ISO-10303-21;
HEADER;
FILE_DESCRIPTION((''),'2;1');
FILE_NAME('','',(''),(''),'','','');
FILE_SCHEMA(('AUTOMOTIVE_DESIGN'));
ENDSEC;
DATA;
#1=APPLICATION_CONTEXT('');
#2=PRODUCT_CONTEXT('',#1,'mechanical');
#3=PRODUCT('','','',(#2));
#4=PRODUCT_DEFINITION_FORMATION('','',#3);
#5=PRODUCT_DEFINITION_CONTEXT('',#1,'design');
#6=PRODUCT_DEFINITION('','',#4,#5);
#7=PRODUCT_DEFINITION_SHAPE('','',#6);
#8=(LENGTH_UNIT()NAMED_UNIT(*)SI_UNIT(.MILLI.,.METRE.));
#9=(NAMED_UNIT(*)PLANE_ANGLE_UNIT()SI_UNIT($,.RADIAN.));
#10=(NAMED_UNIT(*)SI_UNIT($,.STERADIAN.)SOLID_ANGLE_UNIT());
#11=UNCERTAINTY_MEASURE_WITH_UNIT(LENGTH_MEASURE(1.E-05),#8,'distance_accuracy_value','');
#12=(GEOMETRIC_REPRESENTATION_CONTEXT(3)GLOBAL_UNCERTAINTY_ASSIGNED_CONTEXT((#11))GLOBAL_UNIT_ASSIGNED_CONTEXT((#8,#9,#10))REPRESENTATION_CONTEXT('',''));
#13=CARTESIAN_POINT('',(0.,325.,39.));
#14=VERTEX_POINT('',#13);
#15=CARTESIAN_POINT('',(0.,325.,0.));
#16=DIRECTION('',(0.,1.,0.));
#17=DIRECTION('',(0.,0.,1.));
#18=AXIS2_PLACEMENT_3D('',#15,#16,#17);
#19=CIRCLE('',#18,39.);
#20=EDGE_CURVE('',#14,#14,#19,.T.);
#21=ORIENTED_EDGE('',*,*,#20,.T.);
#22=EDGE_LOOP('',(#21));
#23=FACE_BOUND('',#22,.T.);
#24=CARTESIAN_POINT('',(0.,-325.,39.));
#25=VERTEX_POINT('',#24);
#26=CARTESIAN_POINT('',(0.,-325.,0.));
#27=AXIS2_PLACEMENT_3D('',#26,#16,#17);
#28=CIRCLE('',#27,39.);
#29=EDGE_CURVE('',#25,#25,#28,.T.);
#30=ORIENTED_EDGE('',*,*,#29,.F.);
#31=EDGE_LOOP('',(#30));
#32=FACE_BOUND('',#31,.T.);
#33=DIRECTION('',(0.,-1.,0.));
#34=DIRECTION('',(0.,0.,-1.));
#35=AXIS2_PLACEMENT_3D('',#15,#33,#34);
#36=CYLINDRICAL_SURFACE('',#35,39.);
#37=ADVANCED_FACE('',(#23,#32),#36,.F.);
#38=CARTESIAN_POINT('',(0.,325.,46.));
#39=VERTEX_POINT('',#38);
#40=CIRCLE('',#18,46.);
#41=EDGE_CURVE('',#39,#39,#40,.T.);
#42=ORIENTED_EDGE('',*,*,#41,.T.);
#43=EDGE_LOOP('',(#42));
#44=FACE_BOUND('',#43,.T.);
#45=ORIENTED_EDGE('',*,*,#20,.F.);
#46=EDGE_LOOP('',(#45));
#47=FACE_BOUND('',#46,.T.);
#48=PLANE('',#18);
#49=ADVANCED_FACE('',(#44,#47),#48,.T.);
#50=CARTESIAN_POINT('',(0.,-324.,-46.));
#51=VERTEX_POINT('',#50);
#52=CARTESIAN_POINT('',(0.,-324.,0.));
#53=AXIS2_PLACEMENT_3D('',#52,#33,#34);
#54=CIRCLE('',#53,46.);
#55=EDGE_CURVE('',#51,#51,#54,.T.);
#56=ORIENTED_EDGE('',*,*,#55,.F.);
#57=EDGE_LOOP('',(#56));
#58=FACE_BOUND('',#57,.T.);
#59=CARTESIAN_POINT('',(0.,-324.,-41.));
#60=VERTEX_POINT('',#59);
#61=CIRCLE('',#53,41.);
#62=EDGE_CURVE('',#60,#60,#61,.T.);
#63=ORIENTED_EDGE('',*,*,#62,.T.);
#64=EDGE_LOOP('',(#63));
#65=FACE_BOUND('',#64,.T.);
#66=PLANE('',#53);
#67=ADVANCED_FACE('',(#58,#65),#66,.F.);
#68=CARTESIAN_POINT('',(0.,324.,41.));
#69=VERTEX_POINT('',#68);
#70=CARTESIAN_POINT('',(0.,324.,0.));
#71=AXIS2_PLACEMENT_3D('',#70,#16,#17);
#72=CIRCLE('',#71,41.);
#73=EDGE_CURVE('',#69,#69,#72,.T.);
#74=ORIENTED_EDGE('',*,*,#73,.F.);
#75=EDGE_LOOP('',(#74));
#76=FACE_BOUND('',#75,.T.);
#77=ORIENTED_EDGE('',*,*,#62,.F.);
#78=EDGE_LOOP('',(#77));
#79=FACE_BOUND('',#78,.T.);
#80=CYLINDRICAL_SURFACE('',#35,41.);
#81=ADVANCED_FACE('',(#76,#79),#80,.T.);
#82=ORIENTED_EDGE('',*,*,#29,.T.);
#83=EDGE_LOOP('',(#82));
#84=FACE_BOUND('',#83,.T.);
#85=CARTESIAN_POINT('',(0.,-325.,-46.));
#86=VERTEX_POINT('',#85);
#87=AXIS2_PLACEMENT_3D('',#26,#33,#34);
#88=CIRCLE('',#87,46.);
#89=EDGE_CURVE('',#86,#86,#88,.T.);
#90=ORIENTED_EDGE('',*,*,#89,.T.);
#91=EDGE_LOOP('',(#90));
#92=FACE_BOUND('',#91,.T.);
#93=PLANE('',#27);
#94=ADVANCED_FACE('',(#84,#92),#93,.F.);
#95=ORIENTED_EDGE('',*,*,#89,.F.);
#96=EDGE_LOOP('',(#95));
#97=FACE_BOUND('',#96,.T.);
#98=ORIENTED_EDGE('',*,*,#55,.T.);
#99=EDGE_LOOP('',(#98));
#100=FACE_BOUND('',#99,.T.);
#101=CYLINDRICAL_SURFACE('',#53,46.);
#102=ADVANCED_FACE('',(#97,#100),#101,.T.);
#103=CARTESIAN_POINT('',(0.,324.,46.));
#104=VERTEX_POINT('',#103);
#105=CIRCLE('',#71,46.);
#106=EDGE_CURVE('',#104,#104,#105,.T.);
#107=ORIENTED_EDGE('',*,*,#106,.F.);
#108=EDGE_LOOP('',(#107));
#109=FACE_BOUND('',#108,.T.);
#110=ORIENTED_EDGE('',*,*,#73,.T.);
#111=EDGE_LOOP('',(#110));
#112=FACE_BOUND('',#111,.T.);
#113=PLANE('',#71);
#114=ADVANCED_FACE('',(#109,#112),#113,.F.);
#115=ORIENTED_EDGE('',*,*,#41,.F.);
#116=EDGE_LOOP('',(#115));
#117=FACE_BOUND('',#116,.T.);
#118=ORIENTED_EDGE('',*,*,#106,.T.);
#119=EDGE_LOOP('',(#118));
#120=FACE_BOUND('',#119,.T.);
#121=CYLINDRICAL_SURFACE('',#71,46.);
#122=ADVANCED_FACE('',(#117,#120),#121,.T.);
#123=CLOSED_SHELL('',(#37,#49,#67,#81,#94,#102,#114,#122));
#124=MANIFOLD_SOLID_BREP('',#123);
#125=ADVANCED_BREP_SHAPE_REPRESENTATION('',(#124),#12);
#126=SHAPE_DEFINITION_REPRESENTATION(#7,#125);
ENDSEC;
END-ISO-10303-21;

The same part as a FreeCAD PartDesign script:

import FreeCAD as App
import Part
import Sketcher
Q = App.Units.Quantity

doc = App.newDocument("Part")
body = doc.addObject("PartDesign::Body", "Body")

sketch1 = doc.addObject("Sketcher::SketchObject", "Sketch")
body.addObject(sketch1)
sketch1.AttachmentSupport = (doc.XZ_Plane, [""])
sketch1.MapMode = "FlatFace"
sketch1.addGeometry([
    Part.Circle(App.Vector(0, 0, 0), App.Vector(0, 0, 1), 41),
    Part.Circle(App.Vector(0, 0, 0), App.Vector(0, 0, 1), 39),
], False)
sketch1.addConstraint([
    Sketcher.Constraint("Coincident", 0, 3, -1, 1),
    Sketcher.Constraint("Coincident", 1, 3, -1, 1),
    Sketcher.Constraint("Diameter", 0, Q("82 mm")),
    Sketcher.Constraint("Diameter", 1, Q("78 mm")),
])
pad1 = doc.addObject("PartDesign::Pad", "Pad")
body.addObject(pad1)
pad1.Profile = sketch1
pad1.Length = 650
pad1.Midplane = True

sketch2 = doc.addObject("Sketcher::SketchObject", "Sketch001")
body.addObject(sketch2)
sketch2.AttachmentSupport = (doc.XZ_Plane, [""])
sketch2.MapMode = "FlatFace"
sketch2.AttachmentOffset = App.Placement(App.Vector(0, 0, -325), App.Rotation())
sketch2.addGeometry([
    Part.Circle(App.Vector(0, 0, 0), App.Vector(0, 0, 1), 46),
    Part.Circle(App.Vector(0, 0, 0), App.Vector(0, 0, 1), 41),
], False)
sketch2.addConstraint([
    Sketcher.Constraint("Coincident", 0, 3, -1, 1),
    Sketcher.Constraint("Coincident", 1, 3, -1, 1),
    Sketcher.Constraint("Diameter", 0, Q("92 mm")),
    Sketcher.Constraint("Diameter", 1, Q("82 mm")),
])
pad2 = doc.addObject("PartDesign::Pad", "Pad001")
body.addObject(pad2)
pad2.Profile = sketch2
pad2.Length = 1

sketch3 = doc.addObject("Sketcher::SketchObject", "Sketch002")
body.addObject(sketch3)
sketch3.AttachmentSupport = (doc.XZ_Plane, [""])
sketch3.MapMode = "FlatFace"
sketch3.AttachmentOffset = App.Placement(App.Vector(0, 0, 324), App.Rotation())
sketch3.addGeometry([
    Part.Circle(App.Vector(0, 0, 0), App.Vector(0, 0, 1), 46),
    Part.Circle(App.Vector(0, 0, 0), App.Vector(0, 0, 1), 41),
], False)
sketch3.addConstraint([
    Sketcher.Constraint("Coincident", 0, 3, -1, 1),
    Sketcher.Constraint("Coincident", 1, 3, -1, 1),
    Sketcher.Constraint("Diameter", 0, Q("92 mm")),
    Sketcher.Constraint("Diameter", 1, Q("82 mm")),
])
pad3 = doc.addObject("PartDesign::Pad", "Pad002")
body.addObject(pad3)
pad3.Profile = sketch3
pad3.Length = 1

doc.recompute()
